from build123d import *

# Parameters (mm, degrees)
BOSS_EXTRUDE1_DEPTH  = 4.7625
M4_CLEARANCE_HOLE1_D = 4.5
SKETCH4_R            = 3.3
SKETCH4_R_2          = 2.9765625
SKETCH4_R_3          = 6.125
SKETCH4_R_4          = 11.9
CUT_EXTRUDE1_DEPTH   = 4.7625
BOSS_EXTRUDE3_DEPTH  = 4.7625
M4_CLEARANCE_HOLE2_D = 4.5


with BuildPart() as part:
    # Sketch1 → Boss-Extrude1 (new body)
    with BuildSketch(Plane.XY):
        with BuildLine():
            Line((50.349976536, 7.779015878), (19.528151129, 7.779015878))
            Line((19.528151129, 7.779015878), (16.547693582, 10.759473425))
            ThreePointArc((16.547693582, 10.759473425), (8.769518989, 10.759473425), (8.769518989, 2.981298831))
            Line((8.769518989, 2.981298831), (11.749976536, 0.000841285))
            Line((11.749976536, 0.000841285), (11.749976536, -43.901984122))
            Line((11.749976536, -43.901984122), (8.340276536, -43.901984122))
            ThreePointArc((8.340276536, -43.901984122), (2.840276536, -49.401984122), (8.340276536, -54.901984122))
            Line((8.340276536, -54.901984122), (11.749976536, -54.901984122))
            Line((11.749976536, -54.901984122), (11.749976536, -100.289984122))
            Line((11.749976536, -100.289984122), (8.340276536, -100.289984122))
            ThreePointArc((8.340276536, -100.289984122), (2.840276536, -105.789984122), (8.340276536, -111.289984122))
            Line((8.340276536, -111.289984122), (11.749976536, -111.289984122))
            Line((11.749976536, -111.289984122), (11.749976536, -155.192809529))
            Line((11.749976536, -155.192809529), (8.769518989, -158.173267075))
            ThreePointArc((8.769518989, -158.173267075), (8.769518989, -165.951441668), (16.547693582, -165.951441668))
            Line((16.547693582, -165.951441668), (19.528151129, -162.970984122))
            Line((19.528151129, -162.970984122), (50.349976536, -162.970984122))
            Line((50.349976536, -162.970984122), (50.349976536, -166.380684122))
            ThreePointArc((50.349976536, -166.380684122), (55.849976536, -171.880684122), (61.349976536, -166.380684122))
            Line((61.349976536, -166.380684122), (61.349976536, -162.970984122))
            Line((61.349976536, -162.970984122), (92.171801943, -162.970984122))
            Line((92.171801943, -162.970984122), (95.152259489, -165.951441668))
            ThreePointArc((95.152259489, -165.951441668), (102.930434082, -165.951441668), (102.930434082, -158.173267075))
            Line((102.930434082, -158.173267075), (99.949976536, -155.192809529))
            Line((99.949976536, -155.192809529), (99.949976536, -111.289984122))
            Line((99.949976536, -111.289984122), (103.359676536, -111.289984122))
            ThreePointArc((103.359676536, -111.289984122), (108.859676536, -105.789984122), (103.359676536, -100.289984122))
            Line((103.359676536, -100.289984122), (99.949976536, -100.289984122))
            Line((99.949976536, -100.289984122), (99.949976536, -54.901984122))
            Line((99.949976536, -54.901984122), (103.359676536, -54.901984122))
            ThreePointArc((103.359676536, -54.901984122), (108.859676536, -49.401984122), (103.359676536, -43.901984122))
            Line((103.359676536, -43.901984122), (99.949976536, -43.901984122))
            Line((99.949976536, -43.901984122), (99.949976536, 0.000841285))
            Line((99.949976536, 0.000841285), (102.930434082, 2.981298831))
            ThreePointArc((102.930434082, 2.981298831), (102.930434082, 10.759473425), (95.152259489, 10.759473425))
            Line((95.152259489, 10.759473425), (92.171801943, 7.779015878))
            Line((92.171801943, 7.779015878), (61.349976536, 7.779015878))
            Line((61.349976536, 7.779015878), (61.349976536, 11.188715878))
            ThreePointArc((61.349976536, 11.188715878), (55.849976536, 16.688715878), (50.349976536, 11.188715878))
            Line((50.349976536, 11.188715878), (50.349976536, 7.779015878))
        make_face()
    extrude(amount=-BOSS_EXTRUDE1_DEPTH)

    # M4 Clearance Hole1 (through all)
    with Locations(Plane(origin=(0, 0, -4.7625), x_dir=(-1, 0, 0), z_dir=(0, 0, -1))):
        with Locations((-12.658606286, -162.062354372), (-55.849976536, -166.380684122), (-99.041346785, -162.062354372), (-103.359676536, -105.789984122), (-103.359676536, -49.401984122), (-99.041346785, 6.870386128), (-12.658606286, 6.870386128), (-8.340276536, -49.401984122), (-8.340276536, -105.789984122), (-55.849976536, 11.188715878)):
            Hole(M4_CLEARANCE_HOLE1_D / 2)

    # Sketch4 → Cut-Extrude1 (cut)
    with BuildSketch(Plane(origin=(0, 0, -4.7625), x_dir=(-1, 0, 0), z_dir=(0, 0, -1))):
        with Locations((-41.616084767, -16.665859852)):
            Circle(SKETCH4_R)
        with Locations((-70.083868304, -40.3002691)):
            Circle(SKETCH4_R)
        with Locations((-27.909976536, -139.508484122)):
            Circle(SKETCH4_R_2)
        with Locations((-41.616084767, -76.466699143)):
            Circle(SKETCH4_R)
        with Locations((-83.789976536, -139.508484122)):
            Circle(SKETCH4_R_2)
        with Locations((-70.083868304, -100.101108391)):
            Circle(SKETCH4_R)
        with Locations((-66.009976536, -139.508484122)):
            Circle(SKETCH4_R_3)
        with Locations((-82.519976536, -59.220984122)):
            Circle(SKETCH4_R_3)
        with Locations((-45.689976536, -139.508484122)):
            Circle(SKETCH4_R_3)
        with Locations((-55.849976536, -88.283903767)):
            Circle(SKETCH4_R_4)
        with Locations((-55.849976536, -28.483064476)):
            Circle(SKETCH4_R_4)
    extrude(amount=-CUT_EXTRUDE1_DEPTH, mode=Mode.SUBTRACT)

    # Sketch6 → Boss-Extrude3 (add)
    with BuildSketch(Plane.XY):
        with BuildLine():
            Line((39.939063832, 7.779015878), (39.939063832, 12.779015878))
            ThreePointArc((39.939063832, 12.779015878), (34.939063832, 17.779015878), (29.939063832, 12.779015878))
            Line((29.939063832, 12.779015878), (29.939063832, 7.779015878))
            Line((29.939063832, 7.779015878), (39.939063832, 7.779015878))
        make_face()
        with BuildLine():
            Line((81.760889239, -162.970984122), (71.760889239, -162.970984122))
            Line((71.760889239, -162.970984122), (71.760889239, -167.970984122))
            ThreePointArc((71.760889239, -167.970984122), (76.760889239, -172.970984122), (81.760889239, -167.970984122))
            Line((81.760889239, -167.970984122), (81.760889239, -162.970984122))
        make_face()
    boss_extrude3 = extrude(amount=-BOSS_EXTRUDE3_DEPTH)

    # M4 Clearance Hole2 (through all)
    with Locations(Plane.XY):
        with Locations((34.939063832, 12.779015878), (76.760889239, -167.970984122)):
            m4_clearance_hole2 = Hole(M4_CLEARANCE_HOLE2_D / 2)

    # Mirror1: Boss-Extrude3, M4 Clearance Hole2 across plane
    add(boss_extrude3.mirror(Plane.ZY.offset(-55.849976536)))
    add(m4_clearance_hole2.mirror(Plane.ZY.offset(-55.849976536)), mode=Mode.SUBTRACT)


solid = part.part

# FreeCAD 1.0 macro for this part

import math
import FreeCAD as App
import Part
import Sketcher

V = App.Vector

doc = App.newDocument("Part")
params = doc.addObject("Spreadsheet::Sheet", "Params")
for row, (alias, value) in enumerate([
    ("sketch1_radius", "5.5 mm"),
    ("pad1_length", "4.7625 mm"),
    ("sketch2_diameter", "4.5 mm"),
    ("hole_diameter", "4.5 mm"),
    ("sketch3_diameter", "6.6 mm"),
    ("sketch3_diameter2", "23.8 mm"),
    ("sketch3_diameter3", "12.25 mm"),
    ("pocket1_length", "4.7625 mm"),
    ("sketch4_radius", "5 mm"),
    ("sketch4_height", "5 mm"),
    ("pad2_length", "4.7625 mm"),
    ("sketch5_diameter", "4.5 mm"),
    ("hole2_diameter", "4.5 mm"),
], start=1):
    params.set(f"A{row}", alias)
    params.set(f"B{row}", "=" + value)
    params.setAlias(f"B{row}", alias)

body = doc.addObject("PartDesign::Body", "Body")

# Sketch on XY plane
sketch1 = doc.addObject("Sketcher::SketchObject", "Sketch")
body.addObject(sketch1)
sketch1.AttachmentSupport = (doc.XY_Plane, [""])
sketch1.MapMode = "FlatFace"
sketch1.addGeometry([
    Part.LineSegment(V(50.349977, 7.779016, 0), V(19.528151, 7.779016, 0)),  # 0
    Part.LineSegment(V(19.528151, 7.779016, 0), V(16.547694, 10.759473, 0)),  # 1
    Part.ArcOfCircle(Part.Circle(V(12.658606, 6.870386, 0), V(0, 0, 1), 5.5), math.radians(45), math.radians(225)),  # 2
    Part.LineSegment(V(8.769519, 2.981299, 0), V(11.749977, 0.000841, 0)),  # 3
    Part.LineSegment(V(11.749977, 0.000841, 0), V(11.749977, -43.901984, 0)),  # 4
    Part.LineSegment(V(11.749977, -43.901984, 0), V(8.340277, -43.901984, 0)),  # 5
    Part.ArcOfCircle(Part.Circle(V(8.340277, -49.401984, 0), V(0, 0, 1), 5.5), math.radians(90), math.radians(270)),  # 6
    Part.LineSegment(V(8.340277, -54.901984, 0), V(11.749977, -54.901984, 0)),  # 7
    Part.LineSegment(V(11.749977, -54.901984, 0), V(11.749977, -100.289984, 0)),  # 8
    Part.LineSegment(V(11.749977, -100.289984, 0), V(8.340277, -100.289984, 0)),  # 9
    Part.ArcOfCircle(Part.Circle(V(8.340277, -105.789984, 0), V(0, 0, 1), 5.5), math.radians(90), math.radians(270)),  # 10
    Part.LineSegment(V(8.340277, -111.289984, 0), V(11.749977, -111.289984, 0)),  # 11
    Part.LineSegment(V(11.749977, -111.289984, 0), V(11.749977, -155.19281, 0)),  # 12
    Part.LineSegment(V(11.749977, -155.19281, 0), V(8.769519, -158.173267, 0)),  # 13
    Part.ArcOfCircle(Part.Circle(V(12.658606, -162.062354, 0), V(0, 0, 1), 5.5), math.radians(135), math.radians(315)),  # 14
    Part.LineSegment(V(16.547694, -165.951442, 0), V(19.528151, -162.970984, 0)),  # 15
    Part.LineSegment(V(19.528151, -162.970984, 0), V(50.349977, -162.970984, 0)),  # 16
    Part.LineSegment(V(50.349977, -162.970984, 0), V(50.349977, -166.380684, 0)),  # 17
    Part.ArcOfCircle(Part.Circle(V(55.849977, -166.380684, 0), V(0, 0, 1), 5.5), math.radians(180), math.radians(360)),  # 18
    Part.LineSegment(V(61.349977, -166.380684, 0), V(61.349977, -162.970984, 0)),  # 19
    Part.LineSegment(V(61.349977, -162.970984, 0), V(92.171802, -162.970984, 0)),  # 20
    Part.LineSegment(V(92.171802, -162.970984, 0), V(95.152259, -165.951442, 0)),  # 21
    Part.ArcOfCircle(Part.Circle(V(99.041347, -162.062354, 0), V(0, 0, 1), 5.5), math.radians(-135), math.radians(45)),  # 22
    Part.LineSegment(V(102.930434, -158.173267, 0), V(99.949977, -155.19281, 0)),  # 23
    Part.LineSegment(V(99.949977, -155.19281, 0), V(99.949977, -111.289984, 0)),  # 24
    Part.LineSegment(V(99.949977, -111.289984, 0), V(103.359677, -111.289984, 0)),  # 25
    Part.ArcOfCircle(Part.Circle(V(103.359677, -105.789984, 0), V(0, 0, 1), 5.5), math.radians(-90), math.radians(90)),  # 26
    Part.LineSegment(V(103.359677, -100.289984, 0), V(99.949977, -100.289984, 0)),  # 27
    Part.LineSegment(V(99.949977, -100.289984, 0), V(99.949977, -54.901984, 0)),  # 28
    Part.LineSegment(V(99.949977, -54.901984, 0), V(103.359677, -54.901984, 0)),  # 29
    Part.ArcOfCircle(Part.Circle(V(103.359677, -49.401984, 0), V(0, 0, 1), 5.5), math.radians(-90), math.radians(90)),  # 30
    Part.LineSegment(V(103.359677, -43.901984, 0), V(99.949977, -43.901984, 0)),  # 31
    Part.LineSegment(V(99.949977, -43.901984, 0), V(99.949977, 0.000841, 0)),  # 32
    Part.LineSegment(V(99.949977, 0.000841, 0), V(102.930434, 2.981299, 0)),  # 33
    Part.ArcOfCircle(Part.Circle(V(99.041347, 6.870386, 0), V(0, 0, 1), 5.5), math.radians(-45), math.radians(135)),  # 34
    Part.LineSegment(V(95.152259, 10.759473, 0), V(92.171802, 7.779016, 0)),  # 35
    Part.LineSegment(V(92.171802, 7.779016, 0), V(61.349977, 7.779016, 0)),  # 36
    Part.LineSegment(V(61.349977, 7.779016, 0), V(61.349977, 11.188716, 0)),  # 37
    Part.ArcOfCircle(Part.Circle(V(55.849977, 11.188716, 0), V(0, 0, 1), 5.5), math.radians(0), math.radians(180)),  # 38
    Part.LineSegment(V(50.349977, 11.188716, 0), V(50.349977, 7.779016, 0)),  # 39
], False)
sketch1.addConstraint([
    Sketcher.Constraint("Coincident", 0, 2, 1, 1),
    Sketcher.Constraint("Tangent", 1, 2, 2, 1),
    Sketcher.Constraint("Tangent", 2, 2, 3, 1),
    Sketcher.Constraint("Coincident", 3, 2, 4, 1),
    Sketcher.Constraint("Coincident", 4, 2, 5, 1),
    Sketcher.Constraint("Tangent", 5, 2, 6, 1),
    Sketcher.Constraint("Tangent", 6, 2, 7, 1),
    Sketcher.Constraint("Coincident", 7, 2, 8, 1),
    Sketcher.Constraint("Coincident", 8, 2, 9, 1),
    Sketcher.Constraint("Tangent", 9, 2, 10, 1),
    Sketcher.Constraint("Tangent", 10, 2, 11, 1),
    Sketcher.Constraint("Coincident", 11, 2, 12, 1),
    Sketcher.Constraint("Coincident", 12, 2, 13, 1),
    Sketcher.Constraint("Tangent", 13, 2, 14, 1),
    Sketcher.Constraint("Tangent", 14, 2, 15, 1),
    Sketcher.Constraint("Coincident", 15, 2, 16, 1),
    Sketcher.Constraint("Coincident", 16, 2, 17, 1),
    Sketcher.Constraint("Tangent", 17, 2, 18, 1),
    Sketcher.Constraint("Tangent", 18, 2, 19, 1),
    Sketcher.Constraint("Coincident", 19, 2, 20, 1),
    Sketcher.Constraint("Coincident", 20, 2, 21, 1),
    Sketcher.Constraint("Tangent", 21, 2, 22, 1),
    Sketcher.Constraint("Tangent", 22, 2, 23, 1),
    Sketcher.Constraint("Coincident", 23, 2, 24, 1),
    Sketcher.Constraint("Coincident", 24, 2, 25, 1),
    Sketcher.Constraint("Tangent", 25, 2, 26, 1),
    Sketcher.Constraint("Tangent", 26, 2, 27, 1),
    Sketcher.Constraint("Coincident", 27, 2, 28, 1),
    Sketcher.Constraint("Coincident", 28, 2, 29, 1),
    Sketcher.Constraint("Tangent", 29, 2, 30, 1),
    Sketcher.Constraint("Tangent", 30, 2, 31, 1),
    Sketcher.Constraint("Coincident", 31, 2, 32, 1),
    Sketcher.Constraint("Coincident", 32, 2, 33, 1),
    Sketcher.Constraint("Tangent", 33, 2, 34, 1),
    Sketcher.Constraint("Tangent", 34, 2, 35, 1),
    Sketcher.Constraint("Coincident", 35, 2, 36, 1),
    Sketcher.Constraint("Coincident", 36, 2, 37, 1),
    Sketcher.Constraint("Tangent", 37, 2, 38, 1),
    Sketcher.Constraint("Tangent", 38, 2, 39, 1),
    Sketcher.Constraint("Coincident", 39, 2, 0, 1),
    Sketcher.Constraint("Horizontal", 0),
    Sketcher.Constraint("Vertical", 4),
    Sketcher.Constraint("Horizontal", 5),
    Sketcher.Constraint("Horizontal", 7),
    Sketcher.Constraint("Vertical", 8),
    Sketcher.Constraint("Horizontal", 9),
    Sketcher.Constraint("Horizontal", 11),
    Sketcher.Constraint("Vertical", 12),
    Sketcher.Constraint("Horizontal", 16),
    Sketcher.Constraint("Vertical", 17),
    Sketcher.Constraint("Vertical", 19),
    Sketcher.Constraint("Horizontal", 20),
    Sketcher.Constraint("Vertical", 24),
    Sketcher.Constraint("Horizontal", 25),
    Sketcher.Constraint("Horizontal", 27),
    Sketcher.Constraint("Vertical", 28),
    Sketcher.Constraint("Horizontal", 29),
    Sketcher.Constraint("Horizontal", 31),
    Sketcher.Constraint("Vertical", 32),
    Sketcher.Constraint("Horizontal", 36),
    Sketcher.Constraint("Vertical", 37),
    Sketcher.Constraint("Vertical", 39),
    Sketcher.Constraint("Equal", 2, 6),
    Sketcher.Constraint("Equal", 6, 10),
    Sketcher.Constraint("Equal", 10, 14),
    Sketcher.Constraint("Equal", 14, 18),
    Sketcher.Constraint("Equal", 18, 22),
    Sketcher.Constraint("Equal", 22, 26),
    Sketcher.Constraint("Equal", 26, 30),
    Sketcher.Constraint("Equal", 30, 34),
    Sketcher.Constraint("Equal", 34, 38),
    Sketcher.Constraint("Parallel", 1, 3),
    Sketcher.Constraint("Perpendicular", 3, 13),
    Sketcher.Constraint("Parallel", 13, 15),
    Sketcher.Constraint("Perpendicular", 15, 21),
    Sketcher.Constraint("Parallel", 21, 23),
    Sketcher.Constraint("Perpendicular", 23, 33),
    Sketcher.Constraint("Parallel", 33, 35),
    Sketcher.Constraint("Horizontal", 14, 3, 22, 3),
    Sketcher.Constraint("Horizontal", 10, 3, 26, 3),
    Sketcher.Constraint("Horizontal", 6, 3, 30, 3),
    Sketcher.Constraint("Horizontal", 2, 3, 34, 3),
    Sketcher.Constraint("Horizontal", 16, 2, 19, 2),
    Sketcher.Constraint("Horizontal", 14, 2, 21, 2),
    Sketcher.Constraint("Horizontal", 12, 2, 23, 2),
    Sketcher.Constraint("Horizontal", 3, 2, 32, 2),
    Sketcher.Constraint("Horizontal", 0, 2, 35, 2),
    Sketcher.Constraint("Vertical", 6, 3, 10, 3),
    Sketcher.Constraint("Vertical", 2, 3, 14, 3),
    Sketcher.Constraint("Vertical", 26, 3, 30, 3),
    Sketcher.Constraint("Vertical", 22, 3, 34, 3),
    Sketcher.Constraint("Vertical", 18, 3, 38, 3),
    Sketcher.Constraint("Vertical", 4, 2, 7, 2),
    Sketcher.Constraint("Vertical", 8, 2, 11, 2),
    Sketcher.Constraint("Vertical", 0, 2, 15, 2),
    Sketcher.Constraint("Vertical", 24, 2, 27, 2),
    Sketcher.Constraint("Equal", 16, 20),
    Sketcher.Constraint("Equal", 11, 25),
    Sketcher.Constraint("Equal", 4, 12),
    Sketcher.Constraint("Equal", 31, 17),
    Sketcher.Constraint("Equal", 19, 37),
    Sketcher.Constraint("Equal", 1, 3),
    Sketcher.Constraint("Radius", 2, 5.5),
    Sketcher.Constraint("DistanceX", 3, 2, 38, 3, 44.1),
    Sketcher.Constraint("DistanceY", 8, 2, 8, 1, 45.388),
    Sketcher.Constraint("DistanceX", 5, 2, 5, 1, 3.4097),
    Sketcher.Constraint("DistanceY", 6, 3, 0, 2, 57.181),
    Sketcher.Constraint("DistanceY", -1, 1, 2, 2, 2.981299),
    Sketcher.Constraint("DistanceX", -1, 1, 20, 2, 92.171802),
    Sketcher.Constraint("DistanceX", -1, 1, 2, 2, 8.769519),
])
sketch1.setExpression("Constraints[102]", "Params.sketch1_radius")
pad1 = doc.addObject("PartDesign::Pad", "Pad")
body.addObject(pad1)
pad1.Profile = sketch1
pad1.setExpression("Length", "Params.pad1_length")
pad1.Reversed = True

# Sketch on XY plane
sketch2 = doc.addObject("Sketcher::SketchObject", "Sketch001")
body.addObject(sketch2)
sketch2.AttachmentSupport = (doc.XY_Plane, [""])
sketch2.MapMode = "FlatFace"
sketch2.AttachmentOffset = App.Placement(V(0, 0, -4.7625), App.Rotation())
sketch2.addGeometry([
    Part.Circle(V(12.658606, -162.062354, 0), V(0, 0, 1), 2.25),  # 0
    Part.Circle(V(55.849977, -166.380684, 0), V(0, 0, 1), 2.25),  # 1
    Part.Circle(V(99.041347, -162.062354, 0), V(0, 0, 1), 2.25),  # 2
    Part.Circle(V(103.359677, -105.789984, 0), V(0, 0, 1), 2.25),  # 3
    Part.Circle(V(103.359677, -49.401984, 0), V(0, 0, 1), 2.25),  # 4
    Part.Circle(V(99.041347, 6.870386, 0), V(0, 0, 1), 2.25),  # 5
    Part.Circle(V(12.658606, 6.870386, 0), V(0, 0, 1), 2.25),  # 6
    Part.Circle(V(8.340277, -49.401984, 0), V(0, 0, 1), 2.25),  # 7
    Part.Circle(V(8.340277, -105.789984, 0), V(0, 0, 1), 2.25),  # 8
    Part.Circle(V(55.849977, 11.188716, 0), V(0, 0, 1), 2.25),  # 9
], False)
sketch2.addConstraint([
    Sketcher.Constraint("Equal", 0, 1),
    Sketcher.Constraint("Equal", 1, 2),
    Sketcher.Constraint("Equal", 2, 3),
    Sketcher.Constraint("Equal", 3, 4),
    Sketcher.Constraint("Equal", 4, 5),
    Sketcher.Constraint("Equal", 5, 6),
    Sketcher.Constraint("Equal", 6, 7),
    Sketcher.Constraint("Equal", 7, 8),
    Sketcher.Constraint("Equal", 8, 9),
    Sketcher.Constraint("Horizontal", 0, 3, 2, 3),
    Sketcher.Constraint("Horizontal", 5, 3, 6, 3),
    Sketcher.Constraint("Horizontal", 4, 3, 7, 3),
    Sketcher.Constraint("Horizontal", 3, 3, 8, 3),
    Sketcher.Constraint("Vertical", 3, 3, 4, 3),
    Sketcher.Constraint("Vertical", 2, 3, 5, 3),
    Sketcher.Constraint("Vertical", 0, 3, 6, 3),
    Sketcher.Constraint("Vertical", 7, 3, 8, 3),
    Sketcher.Constraint("Vertical", 1, 3, 9, 3),
    Sketcher.Constraint("Diameter", 0, 4.5),
    Sketcher.Constraint("DistanceY", 3, 3, 4, 3, 56.388),
    Sketcher.Constraint("DistanceX", 1, 3, 3, 3, 47.5097),
    Sketcher.Constraint("DistanceY", 1, 3, 3, 3, 60.5907),
    Sketcher.Constraint("DistanceX", 7, 3, 4, 3, 95.0194),
    Sketcher.Constraint("DistanceY", 4, 3, 9, 3, 60.5907),
    Sketcher.Constraint("DistanceX", 0, 3, 1, 3, 43.19137),
    Sketcher.Constraint("DistanceY", 1, 3, 0, 3, 4.31833),
    Sketcher.Constraint("DistanceX", 1, 3, 2, 3, 43.19137),
    Sketcher.Constraint("DistanceY", 4, 3, 5, 3, 56.27237),
    Sketcher.Constraint("DistanceX", -1, 1, 0, 3, 12.658606),
    Sketcher.Constraint("DistanceY", 0, 3, -1, 1, 162.062354),
])
sketch2.setExpression("Constraints[18]", "Params.sketch2_diameter")
doc.recompute()
hole = doc.addObject("PartDesign::Hole", "Hole")
body.addObject(hole)
hole.Profile = sketch2
hole.ThreadType = "None"
hole.setExpression("Diameter", "Params.hole_diameter")
hole.DepthType = "ThroughAll"
hole.Reversed = True

# Sketch on XY plane
sketch3 = doc.addObject("Sketcher::SketchObject", "Sketch002")
body.addObject(sketch3)
sketch3.AttachmentSupport = (doc.XY_Plane, [""])
sketch3.MapMode = "FlatFace"
sketch3.AttachmentOffset = App.Placement(V(0, 0, -4.7625), App.Rotation())
sketch3.addGeometry([
    Part.Circle(V(41.616085, -16.66586, 0), V(0, 0, 1), 3.3),  # 0
    Part.Circle(V(70.083868, -40.300269, 0), V(0, 0, 1), 3.3),  # 1
    Part.Circle(V(27.909977, -139.508484, 0), V(0, 0, 1), 2.976562),  # 2
    Part.Circle(V(41.616085, -76.466699, 0), V(0, 0, 1), 3.3),  # 3
    Part.Circle(V(83.789977, -139.508484, 0), V(0, 0, 1), 2.976562),  # 4
    Part.Circle(V(70.083868, -100.101108, 0), V(0, 0, 1), 3.3),  # 5
    Part.Circle(V(66.009977, -139.508484, 0), V(0, 0, 1), 6.125),  # 6
    Part.Circle(V(82.519977, -59.220984, 0), V(0, 0, 1), 6.125),  # 7
    Part.Circle(V(45.689977, -139.508484, 0), V(0, 0, 1), 6.125),  # 8
    Part.Circle(V(55.849977, -88.283904, 0), V(0, 0, 1), 11.9),  # 9
    Part.Circle(V(55.849977, -28.483064, 0), V(0, 0, 1), 11.9),  # 10
], False)
sketch3.addConstraint([
    Sketcher.Constraint("Equal", 0, 1),
    Sketcher.Constraint("Equal", 1, 3),
    Sketcher.Constraint("Equal", 2, 4),
    Sketcher.Constraint("Equal", 3, 5),
    Sketcher.Constraint("Equal", 6, 7),
    Sketcher.Constraint("Equal", 7, 8),
    Sketcher.Constraint("Equal", 9, 10),
    Sketcher.Constraint("Horizontal", 2, 3, 4, 3),
    Sketcher.Constraint("Horizontal", 4, 3, 6, 3),
    Sketcher.Constraint("Horizontal", 6, 3, 8, 3),
    Sketcher.Constraint("Vertical", 0, 3, 3, 3),
    Sketcher.Constraint("Vertical", 1, 3, 5, 3),
    Sketcher.Constraint("Vertical", 9, 3, 10, 3),
    Sketcher.Constraint("Diameter", 0, 6.6),
    Sketcher.Constraint("Diameter", 9, 23.8),
    Sketcher.Constraint("Diameter", 6, 12.25),
    Sketcher.Constraint("DistanceX", 2, 3, 6, 3, 38.1),
    Sketcher.Constraint("DistanceX", 8, 3, 4, 3, 38.1),
    Sketcher.Constraint("DistanceX", 2, 3, 4, 3, 55.88),
    Sketcher.Constraint("DistanceX", 7, 3, 4, 3, 1.27),
    Sketcher.Constraint("DistanceX", 9, 3, 7, 3, 26.67),
    Sketcher.Constraint("Diameter", 2, 5.953125),
    Sketcher.Constraint("DistanceY", 3, 3, -1, 1, 76.466699),
    Sketcher.Constraint("DistanceY", 4, 3, 7, 3, 80.2875),
    Sketcher.Constraint("DistanceY", 0, 3, -1, 1, 16.66586),
    Sketcher.Constraint("DistanceX", -1, 1, 1, 3, 70.083868),
    Sketcher.Constraint("DistanceY", 1, 3, -1, 1, 40.300269),
    Sketcher.Constraint("DistanceY", 5, 3, -1, 1, 100.101108),
    Sketcher.Constraint("DistanceX", 2, 3, 1, 3, 42.173892),
    Sketcher.Constraint("DistanceX", 2, 3, 0, 3, 13.706108),
    Sketcher.Constraint("DistanceY", 9, 3, 7, 3, 29.06292),
    Sketcher.Constraint("DistanceY", 7, 3, 10, 3, 30.73792),
    Sketcher.Constraint("DistanceY", 2, 3, -1, 1, 139.508484),
])
sketch3.setExpression("Constraints[13]", "Params.sketch3_diameter")
sketch3.setExpression("Constraints[14]", "Params.sketch3_diameter2")
sketch3.setExpression("Constraints[15]", "Params.sketch3_diameter3")
pocket1 = doc.addObject("PartDesign::Pocket", "Pocket")
body.addObject(pocket1)
pocket1.Profile = sketch3
pocket1.setExpression("Length", "Params.pocket1_length")
pocket1.Reversed = True

# Sketch on XY plane
sketch4 = doc.addObject("Sketcher::SketchObject", "Sketch003")
body.addObject(sketch4)
sketch4.AttachmentSupport = (doc.XY_Plane, [""])
sketch4.MapMode = "FlatFace"
sketch4.addGeometry([
    Part.LineSegment(V(39.939064, 7.779016, 0), V(39.939064, 12.779016, 0)),  # 0
    Part.ArcOfCircle(Part.Circle(V(34.939064, 12.779016, 0), V(0, 0, 1), 5), math.radians(0), math.radians(180)),  # 1
    Part.LineSegment(V(29.939064, 12.779016, 0), V(29.939064, 7.779016, 0)),  # 2
    Part.LineSegment(V(29.939064, 7.779016, 0), V(39.939064, 7.779016, 0)),  # 3
    Part.LineSegment(V(81.760889, -162.970984, 0), V(71.760889, -162.970984, 0)),  # 4
    Part.LineSegment(V(71.760889, -162.970984, 0), V(71.760889, -167.970984, 0)),  # 5
    Part.ArcOfCircle(Part.Circle(V(76.760889, -167.970984, 0), V(0, 0, 1), 5), math.radians(180), math.radians(360)),  # 6
    Part.LineSegment(V(81.760889, -167.970984, 0), V(81.760889, -162.970984, 0)),  # 7
], False)
sketch4.addConstraint([
    Sketcher.Constraint("Tangent", 0, 2, 1, 1),
    Sketcher.Constraint("Tangent", 1, 2, 2, 1),
    Sketcher.Constraint("Coincident", 2, 2, 3, 1),
    Sketcher.Constraint("Coincident", 3, 2, 0, 1),
    Sketcher.Constraint("Coincident", 4, 2, 5, 1),
    Sketcher.Constraint("Tangent", 5, 2, 6, 1),
    Sketcher.Constraint("Tangent", 6, 2, 7, 1),
    Sketcher.Constraint("Coincident", 7, 2, 4, 1),
    Sketcher.Constraint("Vertical", 0),
    Sketcher.Constraint("Vertical", 2),
    Sketcher.Constraint("Horizontal", 3),
    Sketcher.Constraint("Horizontal", 4),
    Sketcher.Constraint("Vertical", 5),
    Sketcher.Constraint("Vertical", 7),
    Sketcher.Constraint("Equal", 1, 6),
    Sketcher.Constraint("Equal", 2, 5),
    Sketcher.Constraint("Radius", 1, 5.0),
    Sketcher.Constraint("DistanceY", 0, 1, 0, 2, 5.0),
    Sketcher.Constraint("DistanceY", 6, 3, 1, 3, 180.75),
    Sketcher.Constraint("DistanceX", -1, 1, 6, 3, 76.760889),
    Sketcher.Constraint("DistanceX", -1, 1, 1, 3, 34.939064),
    Sketcher.Constraint("DistanceY", -1, 1, 1, 3, 12.779016),
])
sketch4.setExpression("Constraints[16]", "Params.sketch4_radius")
sketch4.setExpression("Constraints[17]", "Params.sketch4_height")
pad2 = doc.addObject("PartDesign::Pad", "Pad001")
body.addObject(pad2)
pad2.Profile = sketch4
pad2.setExpression("Length", "Params.pad2_length")
pad2.Reversed = True

# Sketch on XY plane
sketch5 = doc.addObject("Sketcher::SketchObject", "Sketch004")
body.addObject(sketch5)
sketch5.AttachmentSupport = (doc.XY_Plane, [""])
sketch5.MapMode = "FlatFace"
sketch5.addGeometry([
    Part.Circle(V(34.939064, 12.779016, 0), V(0, 0, 1), 2.25),
    Part.Circle(V(76.760889, -167.970984, 0), V(0, 0, 1), 2.25),
], False)
sketch5.addConstraint([
    Sketcher.Constraint("Equal", 0, 1),
    Sketcher.Constraint("Diameter", 0, 4.5),
    Sketcher.Constraint("DistanceY", 1, 3, 0, 3, 180.75),
    Sketcher.Constraint("DistanceX", -1, 1, 1, 3, 76.760889),
    Sketcher.Constraint("DistanceX", -1, 1, 0, 3, 34.939064),
    Sketcher.Constraint("DistanceY", -1, 1, 0, 3, 12.779016),
])
sketch5.setExpression("Constraints[1]", "Params.sketch5_diameter")
doc.recompute()
hole2 = doc.addObject("PartDesign::Hole", "Hole001")
body.addObject(hole2)
hole2.Profile = sketch5
hole2.ThreadType = "None"
hole2.setExpression("Diameter", "Params.hole2_diameter")
hole2.DepthType = "ThroughAll"
doc.recompute()

datumplane = doc.addObject("PartDesign::Plane", "DatumPlane")
body.addObject(datumplane)
datumplane.AttachmentSupport = (doc.YZ_Plane, [""])
datumplane.MapMode = "FlatFace"
datumplane.AttachmentOffset = App.Placement(V(0, 0, 55.849977), App.Rotation())
mirrored = doc.addObject("PartDesign::Mirrored", "Mirrored")
body.addObject(mirrored)
mirrored.Originals = [pad2, hole2]
mirrored.MirrorPlane = (datumplane, [""])
body.Tip = mirrored

doc.recompute()
